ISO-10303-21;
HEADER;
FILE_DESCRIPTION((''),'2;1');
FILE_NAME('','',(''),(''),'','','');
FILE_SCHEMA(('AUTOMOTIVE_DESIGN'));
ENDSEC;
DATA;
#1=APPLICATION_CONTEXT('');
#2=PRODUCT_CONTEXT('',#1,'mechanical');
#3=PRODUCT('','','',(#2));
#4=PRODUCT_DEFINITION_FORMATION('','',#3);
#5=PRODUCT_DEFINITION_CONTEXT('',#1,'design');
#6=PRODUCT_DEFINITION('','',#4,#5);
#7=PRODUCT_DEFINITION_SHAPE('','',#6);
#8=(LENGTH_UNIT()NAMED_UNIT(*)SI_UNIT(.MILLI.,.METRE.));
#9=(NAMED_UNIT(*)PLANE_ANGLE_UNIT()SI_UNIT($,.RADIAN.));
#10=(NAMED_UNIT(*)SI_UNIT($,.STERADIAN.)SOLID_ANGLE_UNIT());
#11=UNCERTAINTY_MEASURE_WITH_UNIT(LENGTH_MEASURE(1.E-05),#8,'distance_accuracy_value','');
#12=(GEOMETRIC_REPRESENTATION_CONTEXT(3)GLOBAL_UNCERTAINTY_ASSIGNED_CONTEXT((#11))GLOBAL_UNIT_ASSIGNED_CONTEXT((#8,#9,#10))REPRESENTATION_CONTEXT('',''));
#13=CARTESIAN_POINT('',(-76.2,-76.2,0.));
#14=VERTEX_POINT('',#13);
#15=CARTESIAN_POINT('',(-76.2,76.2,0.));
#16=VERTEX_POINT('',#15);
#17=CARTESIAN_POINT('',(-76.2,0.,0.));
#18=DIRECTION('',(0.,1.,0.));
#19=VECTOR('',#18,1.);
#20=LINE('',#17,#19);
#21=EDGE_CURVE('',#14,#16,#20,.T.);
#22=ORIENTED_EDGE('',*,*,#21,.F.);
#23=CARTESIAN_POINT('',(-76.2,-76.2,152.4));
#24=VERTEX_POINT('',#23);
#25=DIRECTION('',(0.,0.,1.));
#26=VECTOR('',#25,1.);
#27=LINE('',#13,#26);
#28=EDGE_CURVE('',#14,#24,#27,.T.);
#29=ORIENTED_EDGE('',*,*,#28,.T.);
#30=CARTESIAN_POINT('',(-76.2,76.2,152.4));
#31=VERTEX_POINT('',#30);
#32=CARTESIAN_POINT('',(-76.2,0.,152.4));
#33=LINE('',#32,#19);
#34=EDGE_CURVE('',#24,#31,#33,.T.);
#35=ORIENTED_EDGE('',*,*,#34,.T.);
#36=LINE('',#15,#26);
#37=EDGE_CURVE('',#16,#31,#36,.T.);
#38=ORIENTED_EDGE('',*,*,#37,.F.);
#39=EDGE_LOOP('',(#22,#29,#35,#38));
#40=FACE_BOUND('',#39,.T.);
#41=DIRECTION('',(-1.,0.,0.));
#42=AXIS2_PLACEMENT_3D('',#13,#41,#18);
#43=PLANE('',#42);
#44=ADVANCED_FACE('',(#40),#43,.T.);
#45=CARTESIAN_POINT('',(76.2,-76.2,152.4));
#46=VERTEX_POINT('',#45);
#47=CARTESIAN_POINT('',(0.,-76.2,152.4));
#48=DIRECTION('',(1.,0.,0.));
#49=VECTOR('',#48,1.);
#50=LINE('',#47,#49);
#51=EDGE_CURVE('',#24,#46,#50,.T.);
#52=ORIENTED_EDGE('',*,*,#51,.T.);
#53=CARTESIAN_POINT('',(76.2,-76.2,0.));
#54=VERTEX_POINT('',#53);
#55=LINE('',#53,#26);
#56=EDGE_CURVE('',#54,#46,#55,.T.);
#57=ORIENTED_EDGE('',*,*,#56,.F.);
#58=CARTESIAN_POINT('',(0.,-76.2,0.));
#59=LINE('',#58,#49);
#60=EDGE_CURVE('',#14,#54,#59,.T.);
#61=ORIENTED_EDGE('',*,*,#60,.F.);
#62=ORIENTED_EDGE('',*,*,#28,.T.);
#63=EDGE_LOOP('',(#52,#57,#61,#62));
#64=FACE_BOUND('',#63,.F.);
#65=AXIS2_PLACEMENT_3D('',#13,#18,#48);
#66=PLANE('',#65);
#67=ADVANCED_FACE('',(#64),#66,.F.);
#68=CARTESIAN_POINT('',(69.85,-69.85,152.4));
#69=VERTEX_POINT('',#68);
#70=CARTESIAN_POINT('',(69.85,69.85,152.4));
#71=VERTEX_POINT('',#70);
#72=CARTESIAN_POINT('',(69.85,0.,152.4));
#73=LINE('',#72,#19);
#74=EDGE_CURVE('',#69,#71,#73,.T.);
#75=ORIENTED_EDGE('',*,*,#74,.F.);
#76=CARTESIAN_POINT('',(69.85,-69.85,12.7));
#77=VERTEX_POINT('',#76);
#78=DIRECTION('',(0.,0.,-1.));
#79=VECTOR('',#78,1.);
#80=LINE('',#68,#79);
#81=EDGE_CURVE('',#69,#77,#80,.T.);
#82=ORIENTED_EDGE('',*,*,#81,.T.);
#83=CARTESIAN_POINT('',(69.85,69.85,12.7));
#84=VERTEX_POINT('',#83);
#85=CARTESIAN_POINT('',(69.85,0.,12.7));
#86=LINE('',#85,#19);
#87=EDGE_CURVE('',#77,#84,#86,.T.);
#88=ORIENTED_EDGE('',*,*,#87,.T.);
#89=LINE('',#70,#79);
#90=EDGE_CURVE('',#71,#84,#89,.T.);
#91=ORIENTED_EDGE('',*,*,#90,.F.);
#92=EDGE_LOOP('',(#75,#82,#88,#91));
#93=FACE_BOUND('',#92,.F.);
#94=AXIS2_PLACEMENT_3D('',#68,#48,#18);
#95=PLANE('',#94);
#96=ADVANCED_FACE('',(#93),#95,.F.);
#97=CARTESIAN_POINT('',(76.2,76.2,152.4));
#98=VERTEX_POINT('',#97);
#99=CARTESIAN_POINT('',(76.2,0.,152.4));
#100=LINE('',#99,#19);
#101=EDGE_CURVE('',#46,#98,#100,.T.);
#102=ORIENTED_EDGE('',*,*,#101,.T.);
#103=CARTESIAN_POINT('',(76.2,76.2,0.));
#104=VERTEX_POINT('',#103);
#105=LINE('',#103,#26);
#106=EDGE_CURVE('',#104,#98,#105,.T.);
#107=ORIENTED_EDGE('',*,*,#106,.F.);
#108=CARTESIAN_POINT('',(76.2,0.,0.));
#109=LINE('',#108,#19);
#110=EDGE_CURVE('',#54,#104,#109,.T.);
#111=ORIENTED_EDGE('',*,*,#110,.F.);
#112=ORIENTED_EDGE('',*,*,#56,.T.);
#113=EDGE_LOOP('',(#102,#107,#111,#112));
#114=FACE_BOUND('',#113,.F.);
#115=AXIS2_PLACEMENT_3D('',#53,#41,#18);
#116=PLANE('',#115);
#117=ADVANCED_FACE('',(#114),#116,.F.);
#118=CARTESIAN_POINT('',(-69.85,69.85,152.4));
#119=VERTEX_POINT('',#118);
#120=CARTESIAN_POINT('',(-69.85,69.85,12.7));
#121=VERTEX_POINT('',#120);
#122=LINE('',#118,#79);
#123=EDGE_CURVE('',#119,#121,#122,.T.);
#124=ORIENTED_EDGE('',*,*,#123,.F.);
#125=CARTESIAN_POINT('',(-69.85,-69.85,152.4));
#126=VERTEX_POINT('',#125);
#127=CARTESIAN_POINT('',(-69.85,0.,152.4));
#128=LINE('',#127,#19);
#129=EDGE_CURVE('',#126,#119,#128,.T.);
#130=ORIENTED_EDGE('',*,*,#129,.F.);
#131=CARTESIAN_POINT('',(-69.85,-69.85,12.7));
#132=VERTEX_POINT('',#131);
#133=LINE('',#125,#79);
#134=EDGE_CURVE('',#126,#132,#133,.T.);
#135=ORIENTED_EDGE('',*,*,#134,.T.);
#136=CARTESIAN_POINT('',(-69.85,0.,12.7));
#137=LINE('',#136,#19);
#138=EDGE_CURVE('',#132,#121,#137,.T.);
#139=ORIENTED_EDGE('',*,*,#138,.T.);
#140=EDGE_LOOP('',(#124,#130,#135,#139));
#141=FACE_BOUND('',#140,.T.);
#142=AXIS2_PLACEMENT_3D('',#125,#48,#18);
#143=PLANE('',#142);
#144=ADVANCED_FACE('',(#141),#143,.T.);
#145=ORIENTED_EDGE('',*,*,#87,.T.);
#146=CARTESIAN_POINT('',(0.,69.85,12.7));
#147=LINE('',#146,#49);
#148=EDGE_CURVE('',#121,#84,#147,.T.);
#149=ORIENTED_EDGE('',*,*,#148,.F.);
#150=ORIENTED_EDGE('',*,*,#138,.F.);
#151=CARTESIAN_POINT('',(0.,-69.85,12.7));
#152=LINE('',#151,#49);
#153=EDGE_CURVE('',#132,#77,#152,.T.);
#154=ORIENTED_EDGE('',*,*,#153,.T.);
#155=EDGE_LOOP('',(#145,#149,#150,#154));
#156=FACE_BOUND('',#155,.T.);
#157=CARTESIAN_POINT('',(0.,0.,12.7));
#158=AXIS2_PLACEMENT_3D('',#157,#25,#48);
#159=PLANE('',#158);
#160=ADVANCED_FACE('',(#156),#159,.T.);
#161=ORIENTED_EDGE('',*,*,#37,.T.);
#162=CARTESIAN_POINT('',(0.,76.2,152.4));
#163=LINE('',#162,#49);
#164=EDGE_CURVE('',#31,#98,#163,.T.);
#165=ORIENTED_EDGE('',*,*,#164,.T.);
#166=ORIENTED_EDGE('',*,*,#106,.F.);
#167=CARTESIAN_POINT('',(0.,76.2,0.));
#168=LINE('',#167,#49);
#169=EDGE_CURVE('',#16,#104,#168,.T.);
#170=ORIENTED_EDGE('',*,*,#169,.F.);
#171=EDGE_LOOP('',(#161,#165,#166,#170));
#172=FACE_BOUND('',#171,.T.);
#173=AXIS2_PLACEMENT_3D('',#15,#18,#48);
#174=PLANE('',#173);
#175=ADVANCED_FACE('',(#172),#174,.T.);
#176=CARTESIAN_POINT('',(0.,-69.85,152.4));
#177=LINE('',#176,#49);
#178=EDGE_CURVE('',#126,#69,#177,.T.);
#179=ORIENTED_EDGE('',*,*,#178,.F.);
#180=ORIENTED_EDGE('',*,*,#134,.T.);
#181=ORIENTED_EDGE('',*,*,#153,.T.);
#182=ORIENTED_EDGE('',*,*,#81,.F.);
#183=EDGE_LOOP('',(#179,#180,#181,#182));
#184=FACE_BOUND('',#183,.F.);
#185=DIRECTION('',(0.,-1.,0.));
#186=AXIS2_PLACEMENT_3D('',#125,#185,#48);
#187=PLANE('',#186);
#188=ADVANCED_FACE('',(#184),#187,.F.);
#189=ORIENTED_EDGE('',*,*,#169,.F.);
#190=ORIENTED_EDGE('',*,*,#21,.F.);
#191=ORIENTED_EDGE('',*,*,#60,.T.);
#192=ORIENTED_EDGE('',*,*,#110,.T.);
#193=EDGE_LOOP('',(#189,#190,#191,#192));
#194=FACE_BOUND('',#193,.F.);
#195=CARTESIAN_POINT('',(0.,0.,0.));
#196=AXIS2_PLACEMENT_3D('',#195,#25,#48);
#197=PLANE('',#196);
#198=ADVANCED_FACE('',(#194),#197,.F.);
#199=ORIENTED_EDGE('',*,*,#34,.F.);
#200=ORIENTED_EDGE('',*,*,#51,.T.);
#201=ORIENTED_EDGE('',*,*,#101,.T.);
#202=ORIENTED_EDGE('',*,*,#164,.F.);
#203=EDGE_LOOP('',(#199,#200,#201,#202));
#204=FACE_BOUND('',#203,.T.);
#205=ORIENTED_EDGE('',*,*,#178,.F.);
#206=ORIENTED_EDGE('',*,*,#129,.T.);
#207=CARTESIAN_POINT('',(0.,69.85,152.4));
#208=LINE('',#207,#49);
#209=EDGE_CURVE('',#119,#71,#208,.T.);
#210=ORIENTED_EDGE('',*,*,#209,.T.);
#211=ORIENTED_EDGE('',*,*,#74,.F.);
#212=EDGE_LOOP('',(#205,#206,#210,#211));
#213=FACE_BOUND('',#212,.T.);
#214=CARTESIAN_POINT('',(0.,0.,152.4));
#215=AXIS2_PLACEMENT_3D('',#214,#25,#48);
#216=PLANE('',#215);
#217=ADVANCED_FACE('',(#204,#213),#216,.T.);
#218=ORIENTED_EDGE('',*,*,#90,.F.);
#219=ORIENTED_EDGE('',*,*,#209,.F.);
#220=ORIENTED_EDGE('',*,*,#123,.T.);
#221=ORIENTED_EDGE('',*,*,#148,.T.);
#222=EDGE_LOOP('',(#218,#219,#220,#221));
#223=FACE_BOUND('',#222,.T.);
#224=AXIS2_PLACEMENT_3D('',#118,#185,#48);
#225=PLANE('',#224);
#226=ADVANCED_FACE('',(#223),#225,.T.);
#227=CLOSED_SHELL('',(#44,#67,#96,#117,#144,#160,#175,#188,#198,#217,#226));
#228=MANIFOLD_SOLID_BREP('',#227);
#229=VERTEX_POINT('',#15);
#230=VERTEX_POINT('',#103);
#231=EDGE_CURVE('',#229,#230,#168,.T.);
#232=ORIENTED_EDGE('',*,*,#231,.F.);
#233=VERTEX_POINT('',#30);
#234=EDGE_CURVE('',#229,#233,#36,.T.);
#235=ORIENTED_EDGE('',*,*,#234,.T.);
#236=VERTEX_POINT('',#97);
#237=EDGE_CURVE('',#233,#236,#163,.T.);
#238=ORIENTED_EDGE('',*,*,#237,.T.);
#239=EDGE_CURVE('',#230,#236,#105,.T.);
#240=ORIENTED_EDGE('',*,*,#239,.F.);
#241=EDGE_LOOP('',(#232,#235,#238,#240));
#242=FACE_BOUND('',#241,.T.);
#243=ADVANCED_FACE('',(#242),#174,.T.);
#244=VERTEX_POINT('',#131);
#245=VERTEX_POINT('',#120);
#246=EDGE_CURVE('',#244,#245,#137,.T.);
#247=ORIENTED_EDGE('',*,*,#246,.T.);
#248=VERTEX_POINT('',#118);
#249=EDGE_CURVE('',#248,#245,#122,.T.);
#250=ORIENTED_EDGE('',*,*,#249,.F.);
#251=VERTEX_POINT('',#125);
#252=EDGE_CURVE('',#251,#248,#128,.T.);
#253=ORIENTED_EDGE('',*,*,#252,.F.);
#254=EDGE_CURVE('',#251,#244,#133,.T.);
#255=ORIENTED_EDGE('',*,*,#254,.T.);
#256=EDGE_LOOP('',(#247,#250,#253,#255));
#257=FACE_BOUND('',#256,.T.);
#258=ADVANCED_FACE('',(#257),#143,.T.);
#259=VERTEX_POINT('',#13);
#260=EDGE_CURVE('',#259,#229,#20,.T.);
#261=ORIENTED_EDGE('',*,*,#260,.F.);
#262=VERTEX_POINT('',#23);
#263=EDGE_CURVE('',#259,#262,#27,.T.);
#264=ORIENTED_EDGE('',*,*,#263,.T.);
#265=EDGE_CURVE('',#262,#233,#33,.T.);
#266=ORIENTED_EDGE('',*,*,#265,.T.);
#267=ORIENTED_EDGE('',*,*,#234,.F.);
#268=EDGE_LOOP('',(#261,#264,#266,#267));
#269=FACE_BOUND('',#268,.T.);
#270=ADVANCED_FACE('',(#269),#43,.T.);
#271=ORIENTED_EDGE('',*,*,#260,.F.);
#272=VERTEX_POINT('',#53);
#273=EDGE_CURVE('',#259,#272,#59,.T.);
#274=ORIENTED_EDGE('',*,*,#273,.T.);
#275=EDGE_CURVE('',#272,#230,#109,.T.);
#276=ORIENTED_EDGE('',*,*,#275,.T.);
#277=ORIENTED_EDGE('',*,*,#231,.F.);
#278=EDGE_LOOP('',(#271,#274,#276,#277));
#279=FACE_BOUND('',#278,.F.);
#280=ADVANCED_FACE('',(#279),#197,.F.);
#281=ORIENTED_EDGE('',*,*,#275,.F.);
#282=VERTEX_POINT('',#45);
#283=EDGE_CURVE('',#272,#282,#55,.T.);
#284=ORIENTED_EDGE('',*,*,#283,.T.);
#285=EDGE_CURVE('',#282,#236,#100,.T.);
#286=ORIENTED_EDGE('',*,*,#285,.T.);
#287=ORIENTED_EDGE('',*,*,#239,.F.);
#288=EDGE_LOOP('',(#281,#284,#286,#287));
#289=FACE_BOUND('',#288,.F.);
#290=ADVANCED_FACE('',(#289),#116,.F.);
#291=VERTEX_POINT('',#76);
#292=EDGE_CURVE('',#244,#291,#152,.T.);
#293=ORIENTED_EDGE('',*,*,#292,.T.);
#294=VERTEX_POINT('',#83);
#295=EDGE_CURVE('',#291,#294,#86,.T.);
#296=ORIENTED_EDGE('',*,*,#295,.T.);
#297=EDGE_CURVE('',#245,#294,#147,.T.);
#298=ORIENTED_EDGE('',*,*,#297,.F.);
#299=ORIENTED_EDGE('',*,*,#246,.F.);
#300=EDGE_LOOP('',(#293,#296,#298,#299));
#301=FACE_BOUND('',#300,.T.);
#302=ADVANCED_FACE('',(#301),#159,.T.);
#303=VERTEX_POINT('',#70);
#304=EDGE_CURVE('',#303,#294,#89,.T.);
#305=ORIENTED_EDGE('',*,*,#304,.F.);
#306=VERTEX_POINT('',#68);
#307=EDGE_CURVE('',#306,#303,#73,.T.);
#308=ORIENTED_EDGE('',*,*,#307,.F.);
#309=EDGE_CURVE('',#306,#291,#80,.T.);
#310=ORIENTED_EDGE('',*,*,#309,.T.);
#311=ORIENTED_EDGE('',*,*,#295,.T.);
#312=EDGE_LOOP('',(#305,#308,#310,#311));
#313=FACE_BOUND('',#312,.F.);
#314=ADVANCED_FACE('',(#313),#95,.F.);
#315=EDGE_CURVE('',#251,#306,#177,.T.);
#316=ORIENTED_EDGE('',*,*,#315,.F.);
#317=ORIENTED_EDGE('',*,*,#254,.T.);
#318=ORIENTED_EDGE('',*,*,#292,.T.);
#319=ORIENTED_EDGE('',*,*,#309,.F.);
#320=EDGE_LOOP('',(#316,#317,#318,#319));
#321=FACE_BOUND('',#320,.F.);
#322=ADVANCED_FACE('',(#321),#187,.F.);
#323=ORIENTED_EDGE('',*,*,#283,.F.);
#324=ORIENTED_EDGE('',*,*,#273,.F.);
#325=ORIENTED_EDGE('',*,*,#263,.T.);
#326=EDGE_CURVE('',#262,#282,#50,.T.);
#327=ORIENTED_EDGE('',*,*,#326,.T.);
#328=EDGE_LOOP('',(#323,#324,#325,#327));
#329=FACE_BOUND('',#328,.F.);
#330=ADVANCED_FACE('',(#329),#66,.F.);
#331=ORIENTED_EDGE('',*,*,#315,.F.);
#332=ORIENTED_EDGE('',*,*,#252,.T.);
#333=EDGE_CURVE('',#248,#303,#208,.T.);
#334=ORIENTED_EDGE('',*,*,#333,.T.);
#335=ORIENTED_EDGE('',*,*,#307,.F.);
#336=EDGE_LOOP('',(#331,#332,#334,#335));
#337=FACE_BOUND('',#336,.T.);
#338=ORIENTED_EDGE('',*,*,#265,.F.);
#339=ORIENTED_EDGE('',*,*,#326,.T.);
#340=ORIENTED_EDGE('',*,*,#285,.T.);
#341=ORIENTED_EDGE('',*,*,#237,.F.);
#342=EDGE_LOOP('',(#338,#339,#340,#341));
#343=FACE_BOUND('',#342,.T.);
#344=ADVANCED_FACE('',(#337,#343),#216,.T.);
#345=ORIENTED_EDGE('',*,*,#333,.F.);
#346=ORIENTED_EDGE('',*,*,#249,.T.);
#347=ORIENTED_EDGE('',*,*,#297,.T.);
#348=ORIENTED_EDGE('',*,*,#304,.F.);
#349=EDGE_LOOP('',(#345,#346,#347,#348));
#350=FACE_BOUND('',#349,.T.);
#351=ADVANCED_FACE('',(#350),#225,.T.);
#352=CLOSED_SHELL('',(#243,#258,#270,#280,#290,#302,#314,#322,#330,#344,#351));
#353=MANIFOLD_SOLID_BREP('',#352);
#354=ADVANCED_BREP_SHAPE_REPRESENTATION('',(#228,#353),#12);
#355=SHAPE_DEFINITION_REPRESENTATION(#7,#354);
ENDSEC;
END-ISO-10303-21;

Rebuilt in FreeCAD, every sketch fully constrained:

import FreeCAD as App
import Part
import Sketcher
from FreeCAD import Vector
Q = App.Units.Quantity

doc = App.newDocument("Part")
body = doc.addObject("PartDesign::Body", "Body")

# Sketch on XY plane
sketch1 = body.newObject("Sketcher::SketchObject", "Sketch")
sketch1.AttachmentSupport = (doc.getObject("XY_Plane"), [""])
sketch1.MapMode = "FlatFace"
sketch1.addGeometry([
    Part.LineSegment(Vector(-76, 76, 0), Vector(-76, -76, 0)),
    Part.LineSegment(Vector(-76, -76, 0), Vector(76, -76, 0)),
    Part.LineSegment(Vector(76, -76, 0), Vector(76, 76, 0)),
    Part.LineSegment(Vector(76, 76, 0), Vector(-76, 76, 0)),
], False)
sketch1.addConstraint([
    Sketcher.Constraint("Coincident", 0, 2, 1, 1),
    Sketcher.Constraint("Coincident", 1, 2, 2, 1),
    Sketcher.Constraint("Coincident", 2, 2, 3, 1),
    Sketcher.Constraint("Coincident", 3, 2, 0, 1),
    Sketcher.Constraint("Vertical", 0),
    Sketcher.Constraint("Horizontal", 1),
    Sketcher.Constraint("Vertical", 2),
    Sketcher.Constraint("Horizontal", 3),
    Sketcher.Constraint("Symmetric", 0, 2, 2, 2, -1, 1),
    Sketcher.Constraint("Equal", 3, 0),
    Sketcher.Constraint("DistanceX", 1, 1, 1, 2, Q("6 in")),
])
pad1 = body.newObject("PartDesign::Pad", "Pad")
pad1.Profile = sketch1
pad1.Length = Q("6 in")
body2 = doc.addObject("PartDesign::Body", "Body001")

# Sketch on XY plane
sketch2 = body2.newObject("Sketcher::SketchObject", "Sketch001")
sketch2.AttachmentSupport = (doc.getObject("XY_Plane001"), [""])
sketch2.MapMode = "FlatFace"
sketch2.addGeometry([
    Part.LineSegment(Vector(-76, 76, 0), Vector(-76, -76, 0)),
    Part.LineSegment(Vector(-76, -76, 0), Vector(76, -76, 0)),
    Part.LineSegment(Vector(76, -76, 0), Vector(76, 76, 0)),
    Part.LineSegment(Vector(76, 76, 0), Vector(-76, 76, 0)),
], False)
sketch2.addConstraint([
    Sketcher.Constraint("Coincident", 0, 2, 1, 1),
    Sketcher.Constraint("Coincident", 1, 2, 2, 1),
    Sketcher.Constraint("Coincident", 2, 2, 3, 1),
    Sketcher.Constraint("Coincident", 3, 2, 0, 1),
    Sketcher.Constraint("Vertical", 0),
    Sketcher.Constraint("Horizontal", 1),
    Sketcher.Constraint("Vertical", 2),
    Sketcher.Constraint("Horizontal", 3),
    Sketcher.Constraint("Symmetric", 0, 2, 2, 2, -1, 1),
    Sketcher.Constraint("Equal", 3, 0),
    Sketcher.Constraint("DistanceX", 1, 1, 1, 2, Q("6 in")),
])
pad2 = body2.newObject("PartDesign::Pad", "Pad001")
pad2.Profile = sketch2
pad2.Length = Q("6 in")
body3 = doc.addObject("PartDesign::Body", "Body002")

# Sketch on XY plane
sketch3 = body3.newObject("Sketcher::SketchObject", "Sketch002")
sketch3.AttachmentSupport = (doc.getObject("XY_Plane002"), [""])
sketch3.MapMode = "FlatFace"
sketch3.AttachmentOffset = App.Placement(Vector(0, 0, 6 * 25.4), App.Rotation())
sketch3.addGeometry([
    Part.LineSegment(Vector(-70, 70, 0), Vector(-70, -70, 0)),
    Part.LineSegment(Vector(-70, -70, 0), Vector(70, -70, 0)),
    Part.LineSegment(Vector(70, -70, 0), Vector(70, 70, 0)),
    Part.LineSegment(Vector(70, 70, 0), Vector(-70, 70, 0)),
], False)
sketch3.addConstraint([
    Sketcher.Constraint("Coincident", 0, 2, 1, 1),
    Sketcher.Constraint("Coincident", 1, 2, 2, 1),
    Sketcher.Constraint("Coincident", 2, 2, 3, 1),
    Sketcher.Constraint("Coincident", 3, 2, 0, 1),
    Sketcher.Constraint("Vertical", 0),
    Sketcher.Constraint("Horizontal", 1),
    Sketcher.Constraint("Vertical", 2),
    Sketcher.Constraint("Horizontal", 3),
    Sketcher.Constraint("Symmetric", 0, 2, 2, 2, -1, 1),
    Sketcher.Constraint("Equal", 3, 0),
    Sketcher.Constraint("DistanceX", 1, 1, 1, 2, Q("5.5 in")),
])
pad3 = body3.newObject("PartDesign::Pad", "Pad002")
pad3.Profile = sketch3
pad3.Length = Q("5.5 in")
pad3.Reversed = True
doc.recompute()

body4 = doc.addObject("PartDesign::Body", "Body003")
body4.BaseFeature = body3
boolean = body.newObject("PartDesign::Boolean", "Boolean")
boolean.Type = "Cut"
boolean.addObjects([body4])
doc.recompute()

boolean2 = body2.newObject("PartDesign::Boolean", "Boolean001")
boolean2.Type = "Cut"
boolean2.addObjects([body3])

doc.recompute()
